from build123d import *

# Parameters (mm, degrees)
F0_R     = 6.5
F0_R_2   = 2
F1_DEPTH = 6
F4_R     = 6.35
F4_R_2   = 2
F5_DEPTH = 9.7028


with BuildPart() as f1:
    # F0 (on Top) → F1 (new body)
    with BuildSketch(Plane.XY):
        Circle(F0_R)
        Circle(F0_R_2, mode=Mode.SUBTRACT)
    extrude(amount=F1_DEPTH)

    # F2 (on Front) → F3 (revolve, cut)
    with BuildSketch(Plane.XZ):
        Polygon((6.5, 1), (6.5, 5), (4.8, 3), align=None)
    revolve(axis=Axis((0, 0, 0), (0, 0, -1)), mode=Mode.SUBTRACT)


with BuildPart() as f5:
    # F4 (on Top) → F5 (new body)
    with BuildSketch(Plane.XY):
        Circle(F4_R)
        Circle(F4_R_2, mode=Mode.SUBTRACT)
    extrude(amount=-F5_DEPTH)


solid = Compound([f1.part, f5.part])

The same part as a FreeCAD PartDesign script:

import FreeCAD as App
import Part
import Sketcher
from FreeCAD import Vector
Q = App.Units.Quantity


def add_polygon(sketch, points):
    """Adds a closed chain of lines whose ends are joined by coincident constraints."""
    first, n = sketch.GeometryCount, len(points)
    for a, b in zip(points, points[1:] + points[:1]):
        sketch.addGeometry(Part.LineSegment(App.Vector(*a, 0), App.Vector(*b, 0)), False)
    for i in range(n):
        sketch.addConstraint(Sketcher.Constraint("Coincident", first + i, 2, first + (i + 1) % n, 1))

doc = App.newDocument("Part")
body = doc.addObject("PartDesign::Body", "Body")

sketch1 = body.newObject("Sketcher::SketchObject", "Sketch")
sketch1.AttachmentSupport = (doc.getObject("XY_Plane"), [""])
sketch1.MapMode = "FlatFace"
sketch1.addGeometry([
    Part.Circle(Vector(0, 0, 0), Vector(0, 0, 1), 6.5),
    Part.Circle(Vector(0, 0, 0), Vector(0, 0, 1), 2),
], False)
sketch1.addConstraint([
    Sketcher.Constraint("Coincident", 0, 3, -1, 1),
    Sketcher.Constraint("Coincident", 1, 3, -1, 1),
    Sketcher.Constraint("Diameter", 0, Q("13 mm")),
    Sketcher.Constraint("Diameter", 1, Q("4 mm")),
])
pad1 = body.newObject("PartDesign::Pad", "Pad")
pad1.Profile = sketch1
pad1.Length = 6

sketch2 = body.newObject("Sketcher::SketchObject", "Sketch001")
sketch2.AttachmentSupport = (doc.getObject("XZ_Plane"), [""])
sketch2.MapMode = "FlatFace"
add_polygon(sketch2, [(6.5, 1), (6.5, 5), (4.8, 3)])
sketch2.addConstraint([
    Sketcher.Constraint("Vertical", 0),
    Sketcher.Constraint("Equal", 1, 2),
    Sketcher.Constraint("DistanceY", 0, 1, 0, 2, Q("4 mm")),
    Sketcher.Constraint("DistanceY", -1, 1, 0, 2, Q("5 mm")),
    Sketcher.Constraint("DistanceX", -1, 1, 0, 2, Q("6.5 mm")),
    Sketcher.Constraint("DistanceX", -1, 1, 1, 2, Q("4.8 mm")),
])
groove = body.newObject("PartDesign::Groove", "Groove")
groove.Profile = sketch2
groove.ReferenceAxis = (sketch2, ["V_Axis"])
groove.Angle = 360
body2 = doc.addObject("PartDesign::Body", "Body001")

sketch3 = body2.newObject("Sketcher::SketchObject", "Sketch002")
sketch3.AttachmentSupport = (doc.getObject("XY_Plane001"), [""])
sketch3.MapMode = "FlatFace"
sketch3.addGeometry([
    Part.Circle(Vector(0, 0, 0), Vector(0, 0, 1), 6.3),
    Part.Circle(Vector(0, 0, 0), Vector(0, 0, 1), 2),
], False)
sketch3.addConstraint([
    Sketcher.Constraint("Coincident", 0, 3, -1, 1),
    Sketcher.Constraint("Coincident", 1, 3, -1, 1),
    Sketcher.Constraint("Diameter", 1, Q("4 mm")),
    Sketcher.Constraint("Diameter", 0, Q("12.7 mm")),
])
pad2 = body2.newObject("PartDesign::Pad", "Pad001")
pad2.Profile = sketch3
pad2.Length = 9.7028
pad2.Reversed = True

doc.recompute()
